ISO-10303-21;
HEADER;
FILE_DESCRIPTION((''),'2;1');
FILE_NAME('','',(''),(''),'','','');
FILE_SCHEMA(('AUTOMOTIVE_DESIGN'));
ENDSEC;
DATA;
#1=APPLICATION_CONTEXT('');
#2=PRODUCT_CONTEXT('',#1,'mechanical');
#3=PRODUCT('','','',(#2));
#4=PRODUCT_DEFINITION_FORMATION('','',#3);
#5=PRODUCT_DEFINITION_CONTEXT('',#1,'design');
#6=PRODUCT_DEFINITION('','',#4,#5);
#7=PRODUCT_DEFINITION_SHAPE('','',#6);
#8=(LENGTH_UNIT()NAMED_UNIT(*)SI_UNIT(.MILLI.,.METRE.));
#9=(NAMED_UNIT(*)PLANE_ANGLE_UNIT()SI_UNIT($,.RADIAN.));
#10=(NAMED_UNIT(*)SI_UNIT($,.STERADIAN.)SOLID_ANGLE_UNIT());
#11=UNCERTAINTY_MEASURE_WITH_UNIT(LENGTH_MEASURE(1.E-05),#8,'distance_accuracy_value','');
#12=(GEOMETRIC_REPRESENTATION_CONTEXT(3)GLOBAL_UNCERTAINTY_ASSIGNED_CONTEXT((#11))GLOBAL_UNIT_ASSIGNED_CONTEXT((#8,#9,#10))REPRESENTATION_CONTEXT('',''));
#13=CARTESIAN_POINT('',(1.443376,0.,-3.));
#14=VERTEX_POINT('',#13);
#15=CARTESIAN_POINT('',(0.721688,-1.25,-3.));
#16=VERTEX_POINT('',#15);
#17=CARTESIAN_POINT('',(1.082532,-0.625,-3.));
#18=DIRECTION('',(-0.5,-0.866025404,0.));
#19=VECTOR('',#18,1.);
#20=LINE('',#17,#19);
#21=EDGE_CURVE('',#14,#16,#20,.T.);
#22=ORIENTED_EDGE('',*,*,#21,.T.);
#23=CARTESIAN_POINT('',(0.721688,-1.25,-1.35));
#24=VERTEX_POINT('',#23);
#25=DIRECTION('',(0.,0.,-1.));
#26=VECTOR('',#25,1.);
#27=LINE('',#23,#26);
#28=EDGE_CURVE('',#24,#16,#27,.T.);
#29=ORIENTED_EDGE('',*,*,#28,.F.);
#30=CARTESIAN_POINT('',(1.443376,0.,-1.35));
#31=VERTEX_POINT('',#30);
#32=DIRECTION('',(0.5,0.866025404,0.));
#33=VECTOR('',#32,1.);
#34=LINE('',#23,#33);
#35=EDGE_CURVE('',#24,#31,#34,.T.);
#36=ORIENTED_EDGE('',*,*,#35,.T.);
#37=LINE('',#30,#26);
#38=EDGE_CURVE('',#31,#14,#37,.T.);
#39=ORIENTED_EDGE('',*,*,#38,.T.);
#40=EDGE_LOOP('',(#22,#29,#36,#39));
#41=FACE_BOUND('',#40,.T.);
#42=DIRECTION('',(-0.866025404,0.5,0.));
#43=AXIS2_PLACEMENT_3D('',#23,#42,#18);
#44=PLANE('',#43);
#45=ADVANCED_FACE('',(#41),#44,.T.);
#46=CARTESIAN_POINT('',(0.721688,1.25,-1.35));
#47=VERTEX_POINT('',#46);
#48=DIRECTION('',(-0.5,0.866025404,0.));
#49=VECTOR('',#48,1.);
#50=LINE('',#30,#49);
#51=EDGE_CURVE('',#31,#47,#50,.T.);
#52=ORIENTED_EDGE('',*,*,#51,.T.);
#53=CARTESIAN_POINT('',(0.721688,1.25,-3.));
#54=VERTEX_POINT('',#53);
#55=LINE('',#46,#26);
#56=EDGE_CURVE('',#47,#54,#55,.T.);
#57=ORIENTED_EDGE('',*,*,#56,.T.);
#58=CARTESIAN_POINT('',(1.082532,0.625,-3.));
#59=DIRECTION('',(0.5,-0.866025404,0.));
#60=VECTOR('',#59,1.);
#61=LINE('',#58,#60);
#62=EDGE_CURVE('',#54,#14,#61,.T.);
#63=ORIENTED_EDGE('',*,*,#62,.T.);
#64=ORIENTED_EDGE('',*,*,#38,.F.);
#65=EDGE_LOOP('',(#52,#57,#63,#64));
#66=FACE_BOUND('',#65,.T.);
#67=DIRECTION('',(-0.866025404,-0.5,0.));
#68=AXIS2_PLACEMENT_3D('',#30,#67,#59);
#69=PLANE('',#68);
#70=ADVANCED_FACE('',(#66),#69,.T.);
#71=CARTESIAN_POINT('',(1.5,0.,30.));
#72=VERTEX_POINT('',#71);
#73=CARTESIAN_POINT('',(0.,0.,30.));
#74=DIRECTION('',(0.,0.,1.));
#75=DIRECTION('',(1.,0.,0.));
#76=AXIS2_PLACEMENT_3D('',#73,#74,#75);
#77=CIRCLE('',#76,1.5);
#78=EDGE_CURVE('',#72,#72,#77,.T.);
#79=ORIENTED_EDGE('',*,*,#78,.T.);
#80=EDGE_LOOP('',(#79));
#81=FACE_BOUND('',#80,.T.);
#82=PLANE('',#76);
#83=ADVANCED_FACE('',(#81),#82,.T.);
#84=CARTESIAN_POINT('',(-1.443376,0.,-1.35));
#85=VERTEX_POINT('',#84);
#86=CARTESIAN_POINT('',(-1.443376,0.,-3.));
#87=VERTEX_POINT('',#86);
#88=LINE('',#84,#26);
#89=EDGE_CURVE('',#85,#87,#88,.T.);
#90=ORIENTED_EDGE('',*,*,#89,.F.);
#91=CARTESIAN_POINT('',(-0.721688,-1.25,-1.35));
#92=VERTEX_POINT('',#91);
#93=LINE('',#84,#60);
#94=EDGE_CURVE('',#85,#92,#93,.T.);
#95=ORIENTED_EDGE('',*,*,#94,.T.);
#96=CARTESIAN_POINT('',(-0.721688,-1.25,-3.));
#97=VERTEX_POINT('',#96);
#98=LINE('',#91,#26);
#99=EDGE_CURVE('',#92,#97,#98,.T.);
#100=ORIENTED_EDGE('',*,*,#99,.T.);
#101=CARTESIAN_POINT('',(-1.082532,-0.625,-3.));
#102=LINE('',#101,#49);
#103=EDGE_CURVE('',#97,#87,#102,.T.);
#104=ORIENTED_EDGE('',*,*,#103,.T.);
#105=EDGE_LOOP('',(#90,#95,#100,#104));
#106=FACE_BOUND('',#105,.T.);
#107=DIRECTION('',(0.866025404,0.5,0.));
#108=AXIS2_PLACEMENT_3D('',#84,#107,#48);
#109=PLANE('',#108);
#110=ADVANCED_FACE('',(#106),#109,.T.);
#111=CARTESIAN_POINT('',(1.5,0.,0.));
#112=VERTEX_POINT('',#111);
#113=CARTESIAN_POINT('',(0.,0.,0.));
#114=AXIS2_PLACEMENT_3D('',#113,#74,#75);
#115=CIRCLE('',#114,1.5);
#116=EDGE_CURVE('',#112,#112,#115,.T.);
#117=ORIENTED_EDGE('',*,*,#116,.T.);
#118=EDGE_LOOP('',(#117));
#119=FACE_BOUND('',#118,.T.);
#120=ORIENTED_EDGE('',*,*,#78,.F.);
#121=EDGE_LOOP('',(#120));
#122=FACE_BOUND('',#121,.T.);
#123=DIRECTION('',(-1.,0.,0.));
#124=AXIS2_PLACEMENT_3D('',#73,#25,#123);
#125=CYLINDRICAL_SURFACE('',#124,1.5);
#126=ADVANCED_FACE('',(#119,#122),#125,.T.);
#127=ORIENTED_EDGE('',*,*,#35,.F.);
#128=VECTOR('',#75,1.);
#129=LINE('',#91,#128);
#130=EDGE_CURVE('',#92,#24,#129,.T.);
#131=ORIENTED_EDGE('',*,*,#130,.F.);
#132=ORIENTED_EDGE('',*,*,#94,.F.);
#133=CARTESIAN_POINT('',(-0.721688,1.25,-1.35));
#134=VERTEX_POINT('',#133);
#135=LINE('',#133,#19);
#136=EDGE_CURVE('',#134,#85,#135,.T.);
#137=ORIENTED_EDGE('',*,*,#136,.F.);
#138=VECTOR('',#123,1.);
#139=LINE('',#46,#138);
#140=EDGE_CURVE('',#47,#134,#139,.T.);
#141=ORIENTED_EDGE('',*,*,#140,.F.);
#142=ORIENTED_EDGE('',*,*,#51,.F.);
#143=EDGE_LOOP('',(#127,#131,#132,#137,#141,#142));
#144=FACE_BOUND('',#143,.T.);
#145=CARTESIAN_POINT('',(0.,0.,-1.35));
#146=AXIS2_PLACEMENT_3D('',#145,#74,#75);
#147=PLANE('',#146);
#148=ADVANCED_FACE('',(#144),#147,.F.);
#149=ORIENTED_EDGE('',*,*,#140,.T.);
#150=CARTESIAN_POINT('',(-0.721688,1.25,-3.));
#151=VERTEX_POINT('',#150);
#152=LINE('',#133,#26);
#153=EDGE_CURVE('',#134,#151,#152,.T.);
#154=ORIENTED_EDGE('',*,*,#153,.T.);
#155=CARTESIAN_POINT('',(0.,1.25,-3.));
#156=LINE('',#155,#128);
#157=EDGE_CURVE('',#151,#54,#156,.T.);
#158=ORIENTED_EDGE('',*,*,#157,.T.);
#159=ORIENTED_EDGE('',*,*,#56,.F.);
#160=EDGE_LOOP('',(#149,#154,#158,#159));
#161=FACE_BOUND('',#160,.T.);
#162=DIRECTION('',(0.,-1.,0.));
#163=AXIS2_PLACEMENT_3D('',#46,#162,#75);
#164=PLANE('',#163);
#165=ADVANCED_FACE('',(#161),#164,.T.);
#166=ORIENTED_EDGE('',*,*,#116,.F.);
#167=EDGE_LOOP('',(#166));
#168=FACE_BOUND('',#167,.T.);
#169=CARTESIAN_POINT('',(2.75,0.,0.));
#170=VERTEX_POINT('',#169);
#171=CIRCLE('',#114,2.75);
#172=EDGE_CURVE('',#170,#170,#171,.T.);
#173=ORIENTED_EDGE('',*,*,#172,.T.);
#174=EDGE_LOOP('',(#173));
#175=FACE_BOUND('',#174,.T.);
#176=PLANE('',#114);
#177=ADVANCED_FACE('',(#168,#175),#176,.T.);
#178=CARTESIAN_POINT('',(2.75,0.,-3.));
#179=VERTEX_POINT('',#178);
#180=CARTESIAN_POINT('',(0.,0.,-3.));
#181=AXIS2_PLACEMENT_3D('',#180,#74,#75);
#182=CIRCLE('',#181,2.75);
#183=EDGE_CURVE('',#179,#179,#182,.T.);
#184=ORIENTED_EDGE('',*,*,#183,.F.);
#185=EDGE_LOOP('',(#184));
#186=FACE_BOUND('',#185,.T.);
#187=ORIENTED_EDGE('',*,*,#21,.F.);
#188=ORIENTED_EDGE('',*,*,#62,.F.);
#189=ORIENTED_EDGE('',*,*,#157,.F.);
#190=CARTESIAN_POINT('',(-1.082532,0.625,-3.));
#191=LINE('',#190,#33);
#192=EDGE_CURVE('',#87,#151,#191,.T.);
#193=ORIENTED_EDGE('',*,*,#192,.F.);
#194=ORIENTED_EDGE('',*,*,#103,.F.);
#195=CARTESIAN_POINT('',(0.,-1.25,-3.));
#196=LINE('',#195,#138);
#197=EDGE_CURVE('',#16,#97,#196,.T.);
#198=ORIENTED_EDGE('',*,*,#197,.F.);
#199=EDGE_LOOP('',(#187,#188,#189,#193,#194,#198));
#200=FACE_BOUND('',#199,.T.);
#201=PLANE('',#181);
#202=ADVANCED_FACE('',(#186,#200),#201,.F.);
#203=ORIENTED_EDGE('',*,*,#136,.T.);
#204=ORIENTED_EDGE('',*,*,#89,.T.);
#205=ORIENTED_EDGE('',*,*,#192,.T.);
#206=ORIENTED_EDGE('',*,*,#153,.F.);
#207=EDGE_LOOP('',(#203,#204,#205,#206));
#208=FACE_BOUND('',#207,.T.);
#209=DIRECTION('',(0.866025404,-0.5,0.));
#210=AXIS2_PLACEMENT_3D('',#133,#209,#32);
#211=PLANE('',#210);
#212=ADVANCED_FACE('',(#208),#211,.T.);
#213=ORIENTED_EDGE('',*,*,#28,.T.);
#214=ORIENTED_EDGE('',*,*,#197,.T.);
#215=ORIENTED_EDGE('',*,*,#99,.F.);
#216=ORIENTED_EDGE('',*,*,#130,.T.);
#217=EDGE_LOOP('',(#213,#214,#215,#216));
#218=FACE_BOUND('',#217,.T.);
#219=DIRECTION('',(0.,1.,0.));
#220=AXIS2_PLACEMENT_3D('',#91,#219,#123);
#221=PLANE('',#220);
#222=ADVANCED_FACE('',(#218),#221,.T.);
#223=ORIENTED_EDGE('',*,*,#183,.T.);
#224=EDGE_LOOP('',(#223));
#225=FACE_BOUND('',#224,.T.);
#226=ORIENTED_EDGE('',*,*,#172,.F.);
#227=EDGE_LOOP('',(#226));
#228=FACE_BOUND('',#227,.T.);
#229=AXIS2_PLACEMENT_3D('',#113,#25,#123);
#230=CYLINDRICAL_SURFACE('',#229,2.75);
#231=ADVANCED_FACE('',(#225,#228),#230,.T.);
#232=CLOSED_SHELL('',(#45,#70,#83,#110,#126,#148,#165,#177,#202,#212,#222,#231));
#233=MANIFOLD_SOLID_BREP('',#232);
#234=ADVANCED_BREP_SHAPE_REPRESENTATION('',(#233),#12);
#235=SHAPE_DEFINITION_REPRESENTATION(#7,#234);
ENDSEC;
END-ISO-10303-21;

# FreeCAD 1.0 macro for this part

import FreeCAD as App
import Part
import Sketcher
Q = App.Units.Quantity

doc = App.newDocument("Part")
body = doc.addObject("PartDesign::Body", "Body")

# Sketch on XY plane
sketch1 = doc.addObject("Sketcher::SketchObject", "Sketch")
body.addObject(sketch1)
sketch1.AttachmentSupport = (doc.XY_Plane, [""])
sketch1.MapMode = "FlatFace"
sketch1.AttachmentOffset = App.Placement(App.Vector(0, 0, -3), App.Rotation())
sketch1.addGeometry(Part.Circle(App.Vector(0, 0, 0), App.Vector(0, 0, 1), 2.8), False)
sketch1.addConstraint([
    Sketcher.Constraint("Coincident", 0, 3, -1, 1),
    Sketcher.Constraint("Diameter", 0, Q("5.5 mm")),
])
pad1 = doc.addObject("PartDesign::Pad", "Pad")
body.addObject(pad1)
pad1.Profile = sketch1
pad1.Length = 3

# Sketch on XY plane
sketch2 = doc.addObject("Sketcher::SketchObject", "Sketch001")
body.addObject(sketch2)
sketch2.AttachmentSupport = (doc.XY_Plane, [""])
sketch2.MapMode = "FlatFace"
sketch2.addGeometry(Part.Circle(App.Vector(0, 0, 0), App.Vector(0, 0, 1), 1.5), False)
sketch2.addConstraint([
    Sketcher.Constraint("Coincident", 0, 3, -1, 1),
    Sketcher.Constraint("Diameter", 0, Q("3 mm")),
])
pad2 = doc.addObject("PartDesign::Pad", "Pad001")
body.addObject(pad2)
pad2.Profile = sketch2
pad2.Length = 30

# Sketch on XY plane
sketch3 = doc.addObject("Sketcher::SketchObject", "Sketch002")
body.addObject(sketch3)
sketch3.AttachmentSupport = (doc.XY_Plane, [""])
sketch3.MapMode = "FlatFace"
sketch3.AttachmentOffset = App.Placement(App.Vector(0, 0, -3.1), App.Rotation())
sketch3.addGeometry([
    Part.LineSegment(App.Vector(1.4, 0, 0), App.Vector(0.7, 1.2, 0)),  # 0
    Part.LineSegment(App.Vector(0.7, 1.2, 0), App.Vector(-0.7, 1.2, 0)),  # 1
    Part.LineSegment(App.Vector(-0.7, 1.2, 0), App.Vector(-1.4, 0, 0)),  # 2
    Part.LineSegment(App.Vector(-1.4, 0, 0), App.Vector(-0.7, -1.2, 0)),  # 3
    Part.LineSegment(App.Vector(-0.7, -1.2, 0), App.Vector(0.7, -1.2, 0)),  # 4
    Part.LineSegment(App.Vector(0.7, -1.2, 0), App.Vector(1.4, 0, 0)),  # 5
], False)
sketch3.addConstraint([
    Sketcher.Constraint("Coincident", 0, 2, 1, 1),
    Sketcher.Constraint("Coincident", 1, 2, 2, 1),
    Sketcher.Constraint("Coincident", 2, 2, 3, 1),
    Sketcher.Constraint("Coincident", 3, 2, 4, 1),
    Sketcher.Constraint("Coincident", 4, 2, 5, 1),
    Sketcher.Constraint("Coincident", 5, 2, 0, 1),
    Sketcher.Constraint("Horizontal", 1),
    Sketcher.Constraint("Horizontal", 4),
    Sketcher.Constraint("Symmetric", 0, 2, 3, 2, -1, 1),
    Sketcher.Constraint("Symmetric", 2, 2, 5, 2, -1, 1),
    Sketcher.Constraint("PointOnObject", 2, 2, -1),
    Sketcher.Constraint("Parallel", 2, 5),
    Sketcher.Constraint("Vertical", 1, 2, 3, 2),
    Sketcher.Constraint("Angle", 0, Q("120 deg")),
    Sketcher.Constraint("DistanceY", 3, 2, 1, 2, Q("2.5 mm")),
    Sketcher.Constraint("DistanceX", 1, 2, 1, 1, Q("1.443376 mm")),
])
pocket1 = doc.addObject("PartDesign::Pocket", "Pocket")
body.addObject(pocket1)
pocket1.Profile = sketch3
pocket1.Length = 1.75
pocket1.Reversed = True

doc.recompute()
